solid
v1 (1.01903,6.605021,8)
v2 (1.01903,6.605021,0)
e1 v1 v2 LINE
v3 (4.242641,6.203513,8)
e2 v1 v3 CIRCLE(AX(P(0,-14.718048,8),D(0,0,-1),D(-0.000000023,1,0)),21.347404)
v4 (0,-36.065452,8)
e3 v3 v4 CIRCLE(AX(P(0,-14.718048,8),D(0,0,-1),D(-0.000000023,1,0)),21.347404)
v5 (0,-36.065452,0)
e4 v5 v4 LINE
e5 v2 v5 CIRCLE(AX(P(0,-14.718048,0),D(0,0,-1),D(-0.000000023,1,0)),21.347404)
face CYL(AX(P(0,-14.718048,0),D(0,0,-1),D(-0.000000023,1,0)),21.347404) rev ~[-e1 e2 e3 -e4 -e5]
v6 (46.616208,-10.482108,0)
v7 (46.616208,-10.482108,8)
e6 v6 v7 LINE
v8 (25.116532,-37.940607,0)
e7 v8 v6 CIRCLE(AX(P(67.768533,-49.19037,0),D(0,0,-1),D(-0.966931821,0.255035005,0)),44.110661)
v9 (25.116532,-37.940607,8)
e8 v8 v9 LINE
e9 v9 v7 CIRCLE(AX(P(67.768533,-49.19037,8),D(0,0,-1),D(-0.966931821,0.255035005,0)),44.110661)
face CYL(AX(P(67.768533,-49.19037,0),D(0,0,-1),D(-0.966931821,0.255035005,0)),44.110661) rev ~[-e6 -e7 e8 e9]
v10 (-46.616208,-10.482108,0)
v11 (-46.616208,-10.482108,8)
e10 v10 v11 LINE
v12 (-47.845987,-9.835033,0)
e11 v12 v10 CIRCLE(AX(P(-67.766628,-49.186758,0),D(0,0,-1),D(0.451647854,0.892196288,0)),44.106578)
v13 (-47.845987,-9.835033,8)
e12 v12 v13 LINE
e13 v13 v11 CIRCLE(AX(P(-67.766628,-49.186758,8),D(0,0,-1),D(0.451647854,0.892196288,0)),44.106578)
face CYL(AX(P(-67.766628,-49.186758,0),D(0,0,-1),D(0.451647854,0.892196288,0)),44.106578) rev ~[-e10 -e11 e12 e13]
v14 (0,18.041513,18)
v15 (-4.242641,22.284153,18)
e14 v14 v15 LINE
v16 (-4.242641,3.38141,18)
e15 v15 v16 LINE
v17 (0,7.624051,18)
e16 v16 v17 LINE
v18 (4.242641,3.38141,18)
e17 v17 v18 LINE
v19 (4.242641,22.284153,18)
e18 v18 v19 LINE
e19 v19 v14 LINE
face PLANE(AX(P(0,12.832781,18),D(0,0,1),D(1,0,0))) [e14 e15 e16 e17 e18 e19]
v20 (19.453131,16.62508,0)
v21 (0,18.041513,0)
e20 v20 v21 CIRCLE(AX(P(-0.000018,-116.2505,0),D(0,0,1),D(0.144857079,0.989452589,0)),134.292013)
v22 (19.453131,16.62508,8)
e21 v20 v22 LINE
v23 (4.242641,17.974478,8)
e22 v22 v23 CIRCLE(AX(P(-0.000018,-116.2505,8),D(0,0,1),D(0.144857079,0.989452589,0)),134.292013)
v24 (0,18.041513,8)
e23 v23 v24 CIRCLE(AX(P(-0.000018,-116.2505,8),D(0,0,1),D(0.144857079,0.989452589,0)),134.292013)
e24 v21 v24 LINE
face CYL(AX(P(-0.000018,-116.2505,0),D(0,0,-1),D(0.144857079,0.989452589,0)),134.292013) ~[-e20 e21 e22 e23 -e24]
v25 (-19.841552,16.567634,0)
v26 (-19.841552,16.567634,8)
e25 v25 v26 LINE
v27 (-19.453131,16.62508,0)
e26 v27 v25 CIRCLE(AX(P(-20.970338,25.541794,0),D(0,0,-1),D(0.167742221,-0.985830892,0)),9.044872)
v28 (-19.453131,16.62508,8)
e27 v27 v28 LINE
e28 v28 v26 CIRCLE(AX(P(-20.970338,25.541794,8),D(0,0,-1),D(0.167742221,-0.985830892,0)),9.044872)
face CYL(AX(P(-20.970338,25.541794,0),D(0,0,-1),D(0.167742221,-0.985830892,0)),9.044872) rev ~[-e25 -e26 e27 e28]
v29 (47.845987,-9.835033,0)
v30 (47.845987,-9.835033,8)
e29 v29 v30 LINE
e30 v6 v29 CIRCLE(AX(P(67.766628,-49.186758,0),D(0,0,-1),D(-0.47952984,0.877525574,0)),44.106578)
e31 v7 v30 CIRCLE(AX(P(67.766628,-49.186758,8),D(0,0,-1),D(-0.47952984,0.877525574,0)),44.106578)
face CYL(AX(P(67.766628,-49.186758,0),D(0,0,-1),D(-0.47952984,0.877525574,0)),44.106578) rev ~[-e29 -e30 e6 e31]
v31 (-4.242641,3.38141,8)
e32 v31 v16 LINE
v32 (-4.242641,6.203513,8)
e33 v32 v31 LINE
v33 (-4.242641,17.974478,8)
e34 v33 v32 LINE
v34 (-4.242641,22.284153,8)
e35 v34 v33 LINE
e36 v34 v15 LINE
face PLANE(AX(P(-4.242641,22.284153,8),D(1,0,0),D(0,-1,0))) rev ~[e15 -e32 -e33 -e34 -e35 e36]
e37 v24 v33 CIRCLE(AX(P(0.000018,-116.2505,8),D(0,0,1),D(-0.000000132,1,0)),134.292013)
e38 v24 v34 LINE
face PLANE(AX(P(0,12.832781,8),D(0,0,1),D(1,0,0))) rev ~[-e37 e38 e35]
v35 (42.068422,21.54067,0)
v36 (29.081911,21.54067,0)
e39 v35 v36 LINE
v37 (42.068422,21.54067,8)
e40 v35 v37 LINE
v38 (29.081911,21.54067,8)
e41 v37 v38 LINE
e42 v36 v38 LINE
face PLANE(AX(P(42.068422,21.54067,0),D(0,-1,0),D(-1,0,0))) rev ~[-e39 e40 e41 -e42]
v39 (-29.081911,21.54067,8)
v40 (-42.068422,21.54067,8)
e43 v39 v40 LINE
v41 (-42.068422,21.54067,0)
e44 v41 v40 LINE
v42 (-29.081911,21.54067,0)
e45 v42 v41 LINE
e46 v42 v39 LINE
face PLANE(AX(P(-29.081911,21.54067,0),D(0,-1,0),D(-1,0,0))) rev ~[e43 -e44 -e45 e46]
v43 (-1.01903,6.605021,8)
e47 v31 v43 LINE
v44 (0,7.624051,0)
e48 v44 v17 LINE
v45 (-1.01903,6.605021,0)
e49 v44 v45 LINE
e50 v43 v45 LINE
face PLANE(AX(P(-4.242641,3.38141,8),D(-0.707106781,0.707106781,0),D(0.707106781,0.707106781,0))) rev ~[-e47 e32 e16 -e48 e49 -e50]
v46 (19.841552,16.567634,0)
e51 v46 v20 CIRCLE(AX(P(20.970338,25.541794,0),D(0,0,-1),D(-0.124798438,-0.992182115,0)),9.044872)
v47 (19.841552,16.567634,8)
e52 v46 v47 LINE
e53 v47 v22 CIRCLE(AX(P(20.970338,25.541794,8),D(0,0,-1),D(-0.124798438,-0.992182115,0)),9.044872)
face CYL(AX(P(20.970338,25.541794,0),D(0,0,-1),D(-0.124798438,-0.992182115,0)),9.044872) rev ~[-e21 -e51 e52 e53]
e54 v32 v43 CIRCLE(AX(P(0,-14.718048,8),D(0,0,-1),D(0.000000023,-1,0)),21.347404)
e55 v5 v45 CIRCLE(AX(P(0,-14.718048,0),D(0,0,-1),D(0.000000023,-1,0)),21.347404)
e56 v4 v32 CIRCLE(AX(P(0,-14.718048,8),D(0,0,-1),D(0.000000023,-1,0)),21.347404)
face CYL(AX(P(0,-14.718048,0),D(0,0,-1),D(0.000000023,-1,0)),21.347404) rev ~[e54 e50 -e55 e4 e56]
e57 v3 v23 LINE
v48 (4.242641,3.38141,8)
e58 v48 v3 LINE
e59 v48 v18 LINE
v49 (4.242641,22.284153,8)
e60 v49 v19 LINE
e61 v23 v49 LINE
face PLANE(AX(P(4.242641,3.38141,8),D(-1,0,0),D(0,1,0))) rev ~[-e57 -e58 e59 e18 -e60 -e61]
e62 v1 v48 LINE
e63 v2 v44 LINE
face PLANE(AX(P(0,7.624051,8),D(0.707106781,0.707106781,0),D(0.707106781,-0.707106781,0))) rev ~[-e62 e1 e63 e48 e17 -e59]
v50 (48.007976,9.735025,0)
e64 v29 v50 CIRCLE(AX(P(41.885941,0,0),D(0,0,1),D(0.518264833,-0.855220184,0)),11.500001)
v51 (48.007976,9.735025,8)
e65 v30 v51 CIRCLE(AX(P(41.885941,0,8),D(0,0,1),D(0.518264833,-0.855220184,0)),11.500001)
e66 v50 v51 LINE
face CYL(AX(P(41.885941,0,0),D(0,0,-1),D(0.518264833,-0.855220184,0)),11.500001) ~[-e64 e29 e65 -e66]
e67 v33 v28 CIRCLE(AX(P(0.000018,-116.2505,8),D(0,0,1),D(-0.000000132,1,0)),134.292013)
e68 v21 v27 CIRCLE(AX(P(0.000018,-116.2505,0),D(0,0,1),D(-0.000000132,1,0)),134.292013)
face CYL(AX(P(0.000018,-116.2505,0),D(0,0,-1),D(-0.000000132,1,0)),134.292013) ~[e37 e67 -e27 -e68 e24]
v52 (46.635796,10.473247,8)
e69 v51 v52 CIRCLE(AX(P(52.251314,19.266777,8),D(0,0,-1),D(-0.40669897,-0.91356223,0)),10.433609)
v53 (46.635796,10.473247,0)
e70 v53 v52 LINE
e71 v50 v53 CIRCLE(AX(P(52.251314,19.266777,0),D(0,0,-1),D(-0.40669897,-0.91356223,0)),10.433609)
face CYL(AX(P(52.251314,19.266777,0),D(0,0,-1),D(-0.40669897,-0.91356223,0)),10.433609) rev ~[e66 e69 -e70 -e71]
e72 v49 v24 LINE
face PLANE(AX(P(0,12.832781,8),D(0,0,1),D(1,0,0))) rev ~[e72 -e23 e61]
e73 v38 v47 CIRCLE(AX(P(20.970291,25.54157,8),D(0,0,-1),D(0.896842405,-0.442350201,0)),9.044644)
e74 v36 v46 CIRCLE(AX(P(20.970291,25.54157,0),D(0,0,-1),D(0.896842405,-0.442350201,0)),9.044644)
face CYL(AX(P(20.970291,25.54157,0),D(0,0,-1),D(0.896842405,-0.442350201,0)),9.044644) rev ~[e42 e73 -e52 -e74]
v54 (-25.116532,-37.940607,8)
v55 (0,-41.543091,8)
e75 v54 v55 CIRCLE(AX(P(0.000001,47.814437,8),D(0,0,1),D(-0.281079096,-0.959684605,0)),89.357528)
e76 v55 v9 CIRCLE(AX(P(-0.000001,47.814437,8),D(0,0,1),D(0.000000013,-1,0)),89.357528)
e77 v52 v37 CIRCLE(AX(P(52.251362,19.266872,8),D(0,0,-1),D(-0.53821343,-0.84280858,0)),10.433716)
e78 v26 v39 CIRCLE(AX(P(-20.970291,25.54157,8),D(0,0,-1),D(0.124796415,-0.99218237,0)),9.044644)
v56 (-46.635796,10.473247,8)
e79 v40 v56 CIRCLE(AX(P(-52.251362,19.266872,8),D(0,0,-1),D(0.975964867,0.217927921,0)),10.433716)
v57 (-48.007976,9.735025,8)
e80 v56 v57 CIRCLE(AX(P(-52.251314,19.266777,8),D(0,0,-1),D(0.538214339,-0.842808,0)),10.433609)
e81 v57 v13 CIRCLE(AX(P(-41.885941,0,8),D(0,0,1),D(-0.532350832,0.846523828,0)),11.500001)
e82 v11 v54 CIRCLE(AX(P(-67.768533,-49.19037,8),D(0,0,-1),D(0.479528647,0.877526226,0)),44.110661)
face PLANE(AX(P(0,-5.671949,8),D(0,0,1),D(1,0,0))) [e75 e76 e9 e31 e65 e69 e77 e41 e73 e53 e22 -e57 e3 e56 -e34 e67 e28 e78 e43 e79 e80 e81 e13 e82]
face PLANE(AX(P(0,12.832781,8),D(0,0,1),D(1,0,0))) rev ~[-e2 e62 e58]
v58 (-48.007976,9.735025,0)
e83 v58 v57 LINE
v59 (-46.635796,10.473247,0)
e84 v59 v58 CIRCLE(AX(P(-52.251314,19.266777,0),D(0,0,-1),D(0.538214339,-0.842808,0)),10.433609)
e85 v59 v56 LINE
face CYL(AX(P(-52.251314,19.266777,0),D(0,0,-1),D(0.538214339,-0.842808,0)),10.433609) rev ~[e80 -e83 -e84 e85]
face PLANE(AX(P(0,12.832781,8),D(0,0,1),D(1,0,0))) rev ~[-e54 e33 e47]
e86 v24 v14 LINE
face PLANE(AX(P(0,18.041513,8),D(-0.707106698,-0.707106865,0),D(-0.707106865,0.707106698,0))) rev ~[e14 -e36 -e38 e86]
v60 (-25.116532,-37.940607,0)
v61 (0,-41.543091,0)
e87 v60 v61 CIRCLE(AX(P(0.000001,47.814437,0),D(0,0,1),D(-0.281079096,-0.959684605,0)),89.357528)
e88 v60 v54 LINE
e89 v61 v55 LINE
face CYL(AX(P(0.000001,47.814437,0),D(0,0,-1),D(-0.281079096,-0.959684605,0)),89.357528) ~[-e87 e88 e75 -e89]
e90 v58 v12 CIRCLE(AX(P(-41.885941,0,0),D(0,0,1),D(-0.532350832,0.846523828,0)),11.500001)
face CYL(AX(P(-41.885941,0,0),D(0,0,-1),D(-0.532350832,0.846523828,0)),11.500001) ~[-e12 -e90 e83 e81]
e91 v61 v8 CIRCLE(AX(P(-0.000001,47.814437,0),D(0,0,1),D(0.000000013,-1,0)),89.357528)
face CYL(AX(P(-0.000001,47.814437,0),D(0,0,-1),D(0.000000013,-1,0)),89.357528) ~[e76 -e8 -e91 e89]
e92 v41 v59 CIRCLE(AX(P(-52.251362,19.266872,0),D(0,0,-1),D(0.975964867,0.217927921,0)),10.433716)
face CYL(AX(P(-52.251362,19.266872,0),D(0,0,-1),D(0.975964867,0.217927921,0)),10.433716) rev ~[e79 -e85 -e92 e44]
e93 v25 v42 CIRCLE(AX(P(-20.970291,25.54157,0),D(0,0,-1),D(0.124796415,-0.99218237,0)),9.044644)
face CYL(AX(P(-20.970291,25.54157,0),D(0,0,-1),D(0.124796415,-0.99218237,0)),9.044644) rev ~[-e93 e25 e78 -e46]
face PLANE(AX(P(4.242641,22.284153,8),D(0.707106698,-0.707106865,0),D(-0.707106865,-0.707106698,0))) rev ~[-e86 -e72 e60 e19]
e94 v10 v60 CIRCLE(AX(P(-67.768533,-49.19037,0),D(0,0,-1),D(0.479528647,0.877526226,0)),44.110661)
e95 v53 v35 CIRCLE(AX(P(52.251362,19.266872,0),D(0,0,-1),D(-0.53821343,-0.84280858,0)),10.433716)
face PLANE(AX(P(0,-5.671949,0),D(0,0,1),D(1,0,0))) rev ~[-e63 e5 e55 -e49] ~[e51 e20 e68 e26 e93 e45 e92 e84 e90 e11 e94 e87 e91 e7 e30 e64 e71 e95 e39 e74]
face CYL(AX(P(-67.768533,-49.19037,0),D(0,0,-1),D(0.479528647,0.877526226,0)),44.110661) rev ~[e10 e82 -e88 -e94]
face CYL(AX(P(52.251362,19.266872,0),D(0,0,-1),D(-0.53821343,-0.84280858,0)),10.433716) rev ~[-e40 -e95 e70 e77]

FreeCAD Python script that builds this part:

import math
import FreeCAD as App
import Part
import Sketcher
Q = App.Units.Quantity


def add_polygon(sketch, points):
    """Adds a closed chain of lines whose ends are joined by coincident constraints."""
    first, n = sketch.GeometryCount, len(points)
    for a, b in zip(points, points[1:] + points[:1]):
        sketch.addGeometry(Part.LineSegment(App.Vector(*a, 0), App.Vector(*b, 0)), False)
    for i in range(n):
        sketch.addConstraint(Sketcher.Constraint("Coincident", first + i, 2, first + (i + 1) % n, 1))

doc = App.newDocument("Part")
body = doc.addObject("PartDesign::Body", "Body")

sketch1 = body.newObject("Sketcher::SketchObject", "Sketch")
sketch1.AttachmentSupport = (doc.getObject("XY_Plane"), [""])
sketch1.MapMode = "FlatFace"
sketch1.addGeometry(Part.LineSegment(App.Vector(42.068422, 21.54067, 0), App.Vector(29.081911, 21.54067, 0)), False)
sketch1.addGeometry(Part.ArcOfCircle(Part.Circle(App.Vector(20.970291, 25.54157, 0), App.Vector(0, 0, 1), 9.044644), math.radians(-97.168999), math.radians(-26.25393)), False)
sketch1.addGeometry(Part.ArcOfCircle(Part.Circle(App.Vector(20.970338, 25.541794, 0), App.Vector(0, 0, 1), 9.044872), math.radians(-99.656573), math.radians(-97.169116)), False)
sketch1.addGeometry(Part.ArcOfCircle(Part.Circle(App.Vector(-0.000018, -116.2505, 0), App.Vector(0, 0, 1), 134.292013), math.radians(81.670997), math.radians(89.999992)), False)
sketch1.addGeometry(Part.ArcOfCircle(Part.Circle(App.Vector(0.000018, -116.2505, 0), App.Vector(0, 0, 1), 134.292013), math.radians(90.000008), math.radians(98.329003)), False)
sketch1.addGeometry(Part.ArcOfCircle(Part.Circle(App.Vector(-20.970338, 25.541794, 0), App.Vector(0, 0, 1), 9.044872), math.radians(-82.830884), math.radians(-80.343427)), False)
sketch1.addGeometry(Part.ArcOfCircle(Part.Circle(App.Vector(-20.970291, 25.54157, 0), App.Vector(0, 0, 1), 9.044644), math.radians(-153.74607), math.radians(-82.831001)), False)
sketch1.addGeometry(Part.LineSegment(App.Vector(-29.081911, 21.54067, 0), App.Vector(-42.068422, 21.54067, 0)), False)
sketch1.addGeometry(Part.ArcOfCircle(Part.Circle(App.Vector(-52.251362, 19.266872, 0), App.Vector(0, 0, 1), 10.433716), math.radians(-57.437898), math.radians(12.587359)), False)
sketch1.addGeometry(Part.ArcOfCircle(Part.Circle(App.Vector(-52.251314, 19.266777, 0), App.Vector(0, 0, 1), 10.433609), math.radians(-66.002363), math.radians(-57.437836)), False)
sketch1.addGeometry(Part.ArcOfCircle(Part.Circle(App.Vector(-41.885941, 0, 0), App.Vector(0, 0, 1), 11.500001), math.radians(122.164429), math.radians(238.784068)), False)
sketch1.addGeometry(Part.ArcOfCircle(Part.Circle(App.Vector(-67.766628, -49.186758, 0), App.Vector(0, 0, 1), 44.106578), math.radians(61.3453), math.radians(63.150542)), False)
sketch1.addGeometry(Part.ArcOfCircle(Part.Circle(App.Vector(-67.768533, -49.19037, 0), App.Vector(0, 0, 1), 44.110661), math.radians(14.775659), math.radians(61.345378)), False)
sketch1.addGeometry(Part.ArcOfCircle(Part.Circle(App.Vector(0.000001, 47.814437, 0), App.Vector(0, 0, 1), 89.357528), math.radians(-106.324619), math.radians(-90.000001)), False)
sketch1.addGeometry(Part.ArcOfCircle(Part.Circle(App.Vector(-0.000001, 47.814437, 0), App.Vector(0, 0, 1), 89.357528), math.radians(-89.999999), math.radians(-73.675381)), False)
sketch1.addGeometry(Part.ArcOfCircle(Part.Circle(App.Vector(67.768533, -49.19037, 0), App.Vector(0, 0, 1), 44.110661), math.radians(118.654622), math.radians(165.224341)), False)
sketch1.addGeometry(Part.ArcOfCircle(Part.Circle(App.Vector(67.766628, -49.186758, 0), App.Vector(0, 0, 1), 44.106578), math.radians(116.849458), math.radians(118.6547)), False)
sketch1.addGeometry(Part.ArcOfCircle(Part.Circle(App.Vector(41.885941, 0, 0), App.Vector(0, 0, 1), 11.500001), math.radians(-58.784068), math.radians(57.835571)), False)
sketch1.addGeometry(Part.ArcOfCircle(Part.Circle(App.Vector(52.251314, 19.266777, 0), App.Vector(0, 0, 1), 10.433609), math.radians(-122.562164), math.radians(-113.997637)), False)
sketch1.addGeometry(Part.ArcOfCircle(Part.Circle(App.Vector(52.251362, 19.266872, 0), App.Vector(0, 0, 1), 10.433716), math.radians(167.412641), math.radians(237.437898)), False)
sketch1.addGeometry(Part.ArcOfCircle(Part.Circle(App.Vector(0, -14.718048, 0), App.Vector(0, 0, 1), 21.347404), math.radians(89.999999), math.radians(270.000001)), False)
sketch1.addGeometry(Part.ArcOfCircle(Part.Circle(App.Vector(0, -14.718048, 0), App.Vector(0, 0, 1), 21.347404), math.radians(-90.000001), math.radians(90.000001)), False)
sketch1.addConstraint(Sketcher.Constraint("Coincident", 0, 2, 1, 2))
sketch1.addConstraint(Sketcher.Constraint("Coincident", 1, 1, 2, 2))
sketch1.addConstraint(Sketcher.Constraint("Coincident", 2, 1, 3, 1))
sketch1.addConstraint(Sketcher.Constraint("Coincident", 3, 2, 4, 1))
sketch1.addConstraint(Sketcher.Constraint("Coincident", 4, 2, 5, 2))
sketch1.addConstraint(Sketcher.Constraint("Coincident", 5, 1, 6, 2))
sketch1.addConstraint(Sketcher.Constraint("Coincident", 6, 1, 7, 1))
sketch1.addConstraint(Sketcher.Constraint("Coincident", 7, 2, 8, 2))
sketch1.addConstraint(Sketcher.Constraint("Coincident", 8, 1, 9, 2))
sketch1.addConstraint(Sketcher.Constraint("Coincident", 9, 1, 10, 1))
sketch1.addConstraint(Sketcher.Constraint("Coincident", 10, 2, 11, 2))
sketch1.addConstraint(Sketcher.Constraint("Coincident", 11, 1, 12, 2))
sketch1.addConstraint(Sketcher.Constraint("Coincident", 12, 1, 13, 1))
sketch1.addConstraint(Sketcher.Constraint("Coincident", 13, 2, 14, 1))
sketch1.addConstraint(Sketcher.Constraint("Coincident", 14, 2, 15, 2))
sketch1.addConstraint(Sketcher.Constraint("Coincident", 15, 1, 16, 2))
sketch1.addConstraint(Sketcher.Constraint("Coincident", 16, 1, 17, 1))
sketch1.addConstraint(Sketcher.Constraint("Coincident", 17, 2, 18, 2))
sketch1.addConstraint(Sketcher.Constraint("Coincident", 18, 1, 19, 2))
sketch1.addConstraint(Sketcher.Constraint("Coincident", 19, 1, 0, 1))
sketch1.addConstraint(Sketcher.Constraint("Coincident", 20, 1, 21, 2))
sketch1.addConstraint(Sketcher.Constraint("Coincident", 21, 1, 20, 2))
sketch1.addConstraint(Sketcher.Constraint("Horizontal", 0))
sketch1.addConstraint(Sketcher.Constraint("Horizontal", 7))
sketch1.addConstraint(Sketcher.Constraint("Coincident", 14, 3, 13, 3))
sketch1.addConstraint(Sketcher.Constraint("PointOnObject", 10, 3, -1))
sketch1.addConstraint(Sketcher.Constraint("PointOnObject", 13, 3, -2))
sketch1.addConstraint(Sketcher.Constraint("PointOnObject", 17, 3, -1))
sketch1.addConstraint(Sketcher.Constraint("PointOnObject", 20, 3, -2))
sketch1.addConstraint(Sketcher.Constraint("PointOnObject", 21, 3, -2))
sketch1.addConstraint(Sketcher.Constraint("PointOnObject", 3, 2, -2))
sketch1.addConstraint(Sketcher.Constraint("PointOnObject", 13, 2, -2))
sketch1.addConstraint(Sketcher.Constraint("PointOnObject", 20, 1, -2))
sketch1.addConstraint(Sketcher.Constraint("PointOnObject", 21, 1, -2))
sketch1.addConstraint(Sketcher.Constraint("Radius", 10, Q("11.500001 mm")))
sketch1.addConstraint(Sketcher.Constraint("Radius", 17, Q("11.500001 mm")))
sketch1.addConstraint(Sketcher.Constraint("Radius", 2, Q("9.044872 mm")))
sketch1.addConstraint(Sketcher.Constraint("Radius", 5, Q("9.044872 mm")))
sketch1.addConstraint(Sketcher.Constraint("Radius", 9, Q("10.433609 mm")))
sketch1.addConstraint(Sketcher.Constraint("Radius", 11, Q("44.106578 mm")))
sketch1.addConstraint(Sketcher.Constraint("Radius", 12, Q("44.110661 mm")))
sketch1.addConstraint(Sketcher.Constraint("Radius", 15, Q("44.110661 mm")))
sketch1.addConstraint(Sketcher.Constraint("Radius", 16, Q("44.106578 mm")))
sketch1.addConstraint(Sketcher.Constraint("Radius", 18, Q("10.433609 mm")))
sketch1.addConstraint(Sketcher.Constraint("Radius", 1, Q("9.044644 mm")))
sketch1.addConstraint(Sketcher.Constraint("Radius", 3, Q("134.292013 mm")))
sketch1.addConstraint(Sketcher.Constraint("Radius", 4, Q("134.292013 mm")))
sketch1.addConstraint(Sketcher.Constraint("Radius", 6, Q("9.044644 mm")))
sketch1.addConstraint(Sketcher.Constraint("Radius", 8, Q("10.433716 mm")))
sketch1.addConstraint(Sketcher.Constraint("Radius", 13, Q("89.357528 mm")))
sketch1.addConstraint(Sketcher.Constraint("Radius", 19, Q("10.433716 mm")))
sketch1.addConstraint(Sketcher.Constraint("Radius", 20, Q("21.347404 mm")))
sketch1.addConstraint(Sketcher.Constraint("DistanceX", 0, 2, 0, 1, Q("12.986511 mm")))
sketch1.addConstraint(Sketcher.Constraint("DistanceX", 7, 2, 7, 1, Q("12.986511 mm")))
sketch1.addConstraint(Sketcher.Constraint("DistanceY", 3, 3, -1, 1, Q("116.2505 mm")))
sketch1.addConstraint(Sketcher.Constraint("DistanceX", 8, 3, 2, 3, Q("73.2217 mm")))
sketch1.addConstraint(Sketcher.Constraint("DistanceY", 0, 2, 1, 3, Q("4.0009 mm")))
sketch1.addConstraint(Sketcher.Constraint("DistanceY", 6, 1, 6, 3, Q("4.0009 mm")))
sketch1.addConstraint(Sketcher.Constraint("DistanceY", 12, 1, 11, 1, Q("27.458499 mm")))
sketch1.addConstraint(Sketcher.Constraint("DistanceY", 14, 2, 15, 1, Q("27.458499 mm")))
sketch1.addConstraint(Sketcher.Constraint("DistanceX", -1, 1, 1, 3, Q("20.970291 mm")))
sketch1.addConstraint(Sketcher.Constraint("DistanceY", -1, 1, 1, 3, Q("25.54157 mm")))
sketch1.addConstraint(Sketcher.Constraint("DistanceX", 6, 3, -1, 1, Q("20.970291 mm")))
sketch1.addConstraint(Sketcher.Constraint("DistanceY", -1, 1, 6, 3, Q("25.54157 mm")))
sketch1.addConstraint(Sketcher.Constraint("DistanceX", 8, 3, -1, 1, Q("52.251362 mm")))
sketch1.addConstraint(Sketcher.Constraint("DistanceX", 10, 3, -1, 1, Q("41.885941 mm")))
sketch1.addConstraint(Sketcher.Constraint("DistanceX", 11, 3, -1, 1, Q("67.766628 mm")))
sketch1.addConstraint(Sketcher.Constraint("DistanceY", 11, 3, -1, 1, Q("49.186758 mm")))
sketch1.addConstraint(Sketcher.Constraint("DistanceY", 12, 3, -1, 1, Q("49.19037 mm")))
sketch1.addConstraint(Sketcher.Constraint("DistanceY", 15, 3, -1, 1, Q("49.19037 mm")))
sketch1.addConstraint(Sketcher.Constraint("DistanceX", -1, 1, 16, 3, Q("67.766628 mm")))
sketch1.addConstraint(Sketcher.Constraint("DistanceY", 16, 3, -1, 1, Q("49.186758 mm")))
sketch1.addConstraint(Sketcher.Constraint("DistanceX", -1, 1, 17, 3, Q("41.885941 mm")))
sketch1.addConstraint(Sketcher.Constraint("DistanceX", -1, 1, 19, 3, Q("52.251362 mm")))
sketch1.addConstraint(Sketcher.Constraint("DistanceX", -1, 1, 2, 1, Q("19.453131 mm")))
sketch1.addConstraint(Sketcher.Constraint("DistanceX", 4, 2, -1, 1, Q("19.453131 mm")))
sketch1.addConstraint(Sketcher.Constraint("DistanceY", -1, 1, 4, 2, Q("16.62508 mm")))
sketch1.addConstraint(Sketcher.Constraint("DistanceX", 12, 1, -1, 1, Q("25.116532 mm")))
sketch1.addConstraint(Sketcher.Constraint("DistanceY", 21, 1, -1, 1, Q("36.065452 mm")))
sketch1.addConstraint(Sketcher.Constraint("DistanceX", 12, 3, 9, 3, Q("15.517219 mm")))
sketch1.addConstraint(Sketcher.Constraint("DistanceY", 18, 3, 13, 3, Q("28.54766 mm")))
sketch1.addConstraint(Sketcher.Constraint("DistanceX", 1, 1, 1, 3, Q("1.128739 mm")))
sketch1.addConstraint(Sketcher.Constraint("DistanceX", 5, 1, 4, 2, Q("0.388421 mm")))
sketch1.addConstraint(Sketcher.Constraint("DistanceX", 9, 3, 8, 1, Q("5.615518 mm")))
sketch1.addConstraint(Sketcher.Constraint("DistanceX", 18, 1, 17, 2, Q("1.37218 mm")))
pad1 = body.newObject("PartDesign::Pad", "Pad")
pad1.Profile = sketch1
pad1.Length = 8

sketch2 = body.newObject("Sketcher::SketchObject", "Sketch001")
sketch2.AttachmentSupport = (doc.getObject("XY_Plane"), [""])
sketch2.MapMode = "FlatFace"
sketch2.AttachmentOffset = App.Placement(App.Vector(0, 0, 8), App.Rotation())
add_polygon(sketch2, [(-4, 3), (0, 8), (4, 3), (4, 22), (0, 18), (-4, 22)])
sketch2.addConstraint(Sketcher.Constraint("Vertical", 2))
sketch2.addConstraint(Sketcher.Constraint("Vertical", 5))
sketch2.addConstraint(Sketcher.Constraint("Symmetric", 2, 2, 4, 2, -2))
sketch2.addConstraint(Sketcher.Constraint("PointOnObject", 0, 2, -2))
sketch2.addConstraint(Sketcher.Constraint("PointOnObject", 3, 2, -2))
sketch2.addConstraint(Sketcher.Constraint("Perpendicular", 0, 1))
sketch2.addConstraint(Sketcher.Constraint("Perpendicular", 1, 3))
sketch2.addConstraint(Sketcher.Constraint("Perpendicular", 3, 4))
sketch2.addConstraint(Sketcher.Constraint("Distance", 0, Q("6 mm")))
sketch2.addConstraint(Sketcher.Constraint("DistanceY", 2, 1, 2, 2, Q("18.902743 mm")))
sketch2.addConstraint(Sketcher.Constraint("DistanceY", -1, 1, 0, 2, Q("7.624051 mm")))
pad2 = body.newObject("PartDesign::Pad", "Pad001")
pad2.Profile = sketch2
pad2.Length = 10

sketch3 = body.newObject("Sketcher::SketchObject", "Sketch002")
sketch3.AttachmentSupport = (doc.getObject("XY_Plane"), [""])
sketch3.MapMode = "FlatFace"
sketch3.AttachmentOffset = App.Placement(App.Vector(0, 0, 18), App.Rotation())
add_polygon(sketch3, [(4, 3), (0, 8), (-4, 3)])
sketch3.addConstraint(Sketcher.Constraint("Horizontal", 2))
sketch3.addConstraint(Sketcher.Constraint("PointOnObject", 0, 2, -2))
sketch3.addConstraint(Sketcher.Constraint("Perpendicular", 0, 1))
sketch3.addConstraint(Sketcher.Constraint("Equal", 0, 1))
sketch3.addConstraint(Sketcher.Constraint("Distance", 0, Q("6 mm")))
sketch3.addConstraint(Sketcher.Constraint("DistanceY", -1, 1, 0, 2, Q("7.624051 mm")))
pocket1 = body.newObject("PartDesign::Pocket", "Pocket")
pocket1.Profile = sketch3
pocket1.Length = 25

doc.recompute()
